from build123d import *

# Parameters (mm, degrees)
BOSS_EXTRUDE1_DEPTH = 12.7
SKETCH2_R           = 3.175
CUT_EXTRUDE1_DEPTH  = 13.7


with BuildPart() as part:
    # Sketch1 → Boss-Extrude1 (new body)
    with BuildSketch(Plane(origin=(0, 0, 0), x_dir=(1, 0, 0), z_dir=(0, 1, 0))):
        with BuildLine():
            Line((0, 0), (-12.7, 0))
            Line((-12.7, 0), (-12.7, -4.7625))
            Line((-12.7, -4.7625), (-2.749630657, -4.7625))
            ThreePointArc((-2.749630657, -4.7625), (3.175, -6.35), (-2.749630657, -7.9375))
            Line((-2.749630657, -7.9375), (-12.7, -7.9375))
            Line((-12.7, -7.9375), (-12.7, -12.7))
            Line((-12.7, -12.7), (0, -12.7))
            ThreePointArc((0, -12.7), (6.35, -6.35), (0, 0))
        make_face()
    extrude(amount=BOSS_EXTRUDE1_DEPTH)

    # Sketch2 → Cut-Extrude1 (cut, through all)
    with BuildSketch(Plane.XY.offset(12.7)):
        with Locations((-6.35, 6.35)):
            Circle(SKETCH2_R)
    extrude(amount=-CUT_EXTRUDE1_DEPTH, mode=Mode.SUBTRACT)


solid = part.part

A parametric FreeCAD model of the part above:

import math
import FreeCAD as App
import Part
import Sketcher
from FreeCAD import Vector
Q = App.Units.Quantity

doc = App.newDocument("Part")
params = doc.addObject("Spreadsheet::Sheet", "Params")
for row, (alias, value) in enumerate([
    ("sketch1_radius", "0.25 in"),
    ("sketch1_width", "0.5 in"),
    ("sketch1_radius2", "0.125 in"),
    ("sketch1_height", "0.1875 in"),
    ("pad1_length", "0.5 in"),
    ("sketch2_diameter", "0.25 in"),
], start=1):
    params.set(f"A{row}", alias)
    params.set(f"B{row}", "=" + value)
    params.setAlias(f"B{row}", alias)

body = doc.addObject("PartDesign::Body", "Body")

sketch1 = body.newObject("Sketcher::SketchObject", "Sketch")
sketch1.AttachmentSupport = (doc.getObject("XZ_Plane"), [""])
sketch1.MapMode = "FlatFace"
sketch1.addGeometry([
    Part.LineSegment(Vector(0, 0, 0), Vector(-12.7, 0, 0)),
    Part.LineSegment(Vector(-12.7, 0, 0), Vector(-12.7, 4.8, 0)),
    Part.LineSegment(Vector(-12.7, 4.8, 0), Vector(-2.7, 4.8, 0)),
    Part.ArcOfCircle(Part.Circle(Vector(0, 6.3, 0), Vector(0, 0, 1), 3.2), math.radians(-150), math.radians(150)),
    Part.LineSegment(Vector(-2.7, 7.9, 0), Vector(-12.7, 7.9, 0)),
    Part.LineSegment(Vector(-12.7, 7.9, 0), Vector(-12.7, 12.7, 0)),
    Part.LineSegment(Vector(-12.7, 12.7, 0), Vector(0, 12.7, 0)),
    Part.ArcOfCircle(Part.Circle(Vector(0, 6.3, 0), Vector(0, 0, 1), 6.3), math.radians(-90), math.radians(90)),
], False)
sketch1.addConstraint([
    Sketcher.Constraint("Coincident", 0, 2, 1, 1),
    Sketcher.Constraint("Coincident", 1, 2, 2, 1),
    Sketcher.Constraint("Coincident", 2, 2, 3, 1),
    Sketcher.Constraint("Coincident", 3, 2, 4, 1),
    Sketcher.Constraint("Coincident", 4, 2, 5, 1),
    Sketcher.Constraint("Coincident", 5, 2, 6, 1),
    Sketcher.Constraint("Tangent", 6, 2, 7, 2),
    Sketcher.Constraint("Tangent", 7, 1, 0, 1),
    Sketcher.Constraint("Horizontal", 0),
    Sketcher.Constraint("Vertical", 1),
    Sketcher.Constraint("Horizontal", 2),
    Sketcher.Constraint("Horizontal", 4),
    Sketcher.Constraint("Vertical", 5),
    Sketcher.Constraint("Horizontal", 6),
    Sketcher.Constraint("Coincident", 7, 1, -1, 1),
    Sketcher.Constraint("Coincident", 7, 3, 3, 3),
    Sketcher.Constraint("Vertical", 2, 2, 3, 2),
    Sketcher.Constraint("Vertical", 1, 2, 4, 2),
    Sketcher.Constraint("Radius", 7, Q("0.25 in")),
    Sketcher.Constraint("DistanceX", 0, 2, 0, 1, Q("0.5 in")),
    Sketcher.Constraint("Radius", 3, Q("0.125 in")),
    Sketcher.Constraint("DistanceY", 1, 1, 1, 2, Q("0.1875 in")),
])
sketch1.setExpression("Constraints[18]", "Params.sketch1_radius")
sketch1.setExpression("Constraints[19]", "Params.sketch1_width")
sketch1.setExpression("Constraints[20]", "Params.sketch1_radius2")
sketch1.setExpression("Constraints[21]", "Params.sketch1_height")
pad1 = body.newObject("PartDesign::Pad", "Pad")
pad1.Profile = sketch1
pad1.setExpression("Length", "Params.pad1_length")
pad1.Reversed = True

sketch2 = body.newObject("Sketcher::SketchObject", "Sketch001")
sketch2.AttachmentSupport = (doc.getObject("XY_Plane"), [""])
sketch2.MapMode = "FlatFace"
sketch2.AttachmentOffset = App.Placement(Vector(0, 0, 0.5 * 25.4), App.Rotation())
sketch2.addGeometry(Part.Circle(Vector(-6.3, 6.3, 0), Vector(0, 0, 1), 3.2), False)
sketch2.addConstraint([
    Sketcher.Constraint("Diameter", 0, Q("0.25 in")),
    Sketcher.Constraint("DistanceX", 0, 3, -1, 1, Q("0.25 in")),
    Sketcher.Constraint("DistanceY", -1, 1, 0, 3, Q("0.25 in")),
])
sketch2.setExpression("Constraints[0]", "Params.sketch2_diameter")
pocket1 = body.newObject("PartDesign::Pocket", "Pocket")
pocket1.Profile = sketch2
pocket1.Type = "ThroughAll"

doc.recompute()
